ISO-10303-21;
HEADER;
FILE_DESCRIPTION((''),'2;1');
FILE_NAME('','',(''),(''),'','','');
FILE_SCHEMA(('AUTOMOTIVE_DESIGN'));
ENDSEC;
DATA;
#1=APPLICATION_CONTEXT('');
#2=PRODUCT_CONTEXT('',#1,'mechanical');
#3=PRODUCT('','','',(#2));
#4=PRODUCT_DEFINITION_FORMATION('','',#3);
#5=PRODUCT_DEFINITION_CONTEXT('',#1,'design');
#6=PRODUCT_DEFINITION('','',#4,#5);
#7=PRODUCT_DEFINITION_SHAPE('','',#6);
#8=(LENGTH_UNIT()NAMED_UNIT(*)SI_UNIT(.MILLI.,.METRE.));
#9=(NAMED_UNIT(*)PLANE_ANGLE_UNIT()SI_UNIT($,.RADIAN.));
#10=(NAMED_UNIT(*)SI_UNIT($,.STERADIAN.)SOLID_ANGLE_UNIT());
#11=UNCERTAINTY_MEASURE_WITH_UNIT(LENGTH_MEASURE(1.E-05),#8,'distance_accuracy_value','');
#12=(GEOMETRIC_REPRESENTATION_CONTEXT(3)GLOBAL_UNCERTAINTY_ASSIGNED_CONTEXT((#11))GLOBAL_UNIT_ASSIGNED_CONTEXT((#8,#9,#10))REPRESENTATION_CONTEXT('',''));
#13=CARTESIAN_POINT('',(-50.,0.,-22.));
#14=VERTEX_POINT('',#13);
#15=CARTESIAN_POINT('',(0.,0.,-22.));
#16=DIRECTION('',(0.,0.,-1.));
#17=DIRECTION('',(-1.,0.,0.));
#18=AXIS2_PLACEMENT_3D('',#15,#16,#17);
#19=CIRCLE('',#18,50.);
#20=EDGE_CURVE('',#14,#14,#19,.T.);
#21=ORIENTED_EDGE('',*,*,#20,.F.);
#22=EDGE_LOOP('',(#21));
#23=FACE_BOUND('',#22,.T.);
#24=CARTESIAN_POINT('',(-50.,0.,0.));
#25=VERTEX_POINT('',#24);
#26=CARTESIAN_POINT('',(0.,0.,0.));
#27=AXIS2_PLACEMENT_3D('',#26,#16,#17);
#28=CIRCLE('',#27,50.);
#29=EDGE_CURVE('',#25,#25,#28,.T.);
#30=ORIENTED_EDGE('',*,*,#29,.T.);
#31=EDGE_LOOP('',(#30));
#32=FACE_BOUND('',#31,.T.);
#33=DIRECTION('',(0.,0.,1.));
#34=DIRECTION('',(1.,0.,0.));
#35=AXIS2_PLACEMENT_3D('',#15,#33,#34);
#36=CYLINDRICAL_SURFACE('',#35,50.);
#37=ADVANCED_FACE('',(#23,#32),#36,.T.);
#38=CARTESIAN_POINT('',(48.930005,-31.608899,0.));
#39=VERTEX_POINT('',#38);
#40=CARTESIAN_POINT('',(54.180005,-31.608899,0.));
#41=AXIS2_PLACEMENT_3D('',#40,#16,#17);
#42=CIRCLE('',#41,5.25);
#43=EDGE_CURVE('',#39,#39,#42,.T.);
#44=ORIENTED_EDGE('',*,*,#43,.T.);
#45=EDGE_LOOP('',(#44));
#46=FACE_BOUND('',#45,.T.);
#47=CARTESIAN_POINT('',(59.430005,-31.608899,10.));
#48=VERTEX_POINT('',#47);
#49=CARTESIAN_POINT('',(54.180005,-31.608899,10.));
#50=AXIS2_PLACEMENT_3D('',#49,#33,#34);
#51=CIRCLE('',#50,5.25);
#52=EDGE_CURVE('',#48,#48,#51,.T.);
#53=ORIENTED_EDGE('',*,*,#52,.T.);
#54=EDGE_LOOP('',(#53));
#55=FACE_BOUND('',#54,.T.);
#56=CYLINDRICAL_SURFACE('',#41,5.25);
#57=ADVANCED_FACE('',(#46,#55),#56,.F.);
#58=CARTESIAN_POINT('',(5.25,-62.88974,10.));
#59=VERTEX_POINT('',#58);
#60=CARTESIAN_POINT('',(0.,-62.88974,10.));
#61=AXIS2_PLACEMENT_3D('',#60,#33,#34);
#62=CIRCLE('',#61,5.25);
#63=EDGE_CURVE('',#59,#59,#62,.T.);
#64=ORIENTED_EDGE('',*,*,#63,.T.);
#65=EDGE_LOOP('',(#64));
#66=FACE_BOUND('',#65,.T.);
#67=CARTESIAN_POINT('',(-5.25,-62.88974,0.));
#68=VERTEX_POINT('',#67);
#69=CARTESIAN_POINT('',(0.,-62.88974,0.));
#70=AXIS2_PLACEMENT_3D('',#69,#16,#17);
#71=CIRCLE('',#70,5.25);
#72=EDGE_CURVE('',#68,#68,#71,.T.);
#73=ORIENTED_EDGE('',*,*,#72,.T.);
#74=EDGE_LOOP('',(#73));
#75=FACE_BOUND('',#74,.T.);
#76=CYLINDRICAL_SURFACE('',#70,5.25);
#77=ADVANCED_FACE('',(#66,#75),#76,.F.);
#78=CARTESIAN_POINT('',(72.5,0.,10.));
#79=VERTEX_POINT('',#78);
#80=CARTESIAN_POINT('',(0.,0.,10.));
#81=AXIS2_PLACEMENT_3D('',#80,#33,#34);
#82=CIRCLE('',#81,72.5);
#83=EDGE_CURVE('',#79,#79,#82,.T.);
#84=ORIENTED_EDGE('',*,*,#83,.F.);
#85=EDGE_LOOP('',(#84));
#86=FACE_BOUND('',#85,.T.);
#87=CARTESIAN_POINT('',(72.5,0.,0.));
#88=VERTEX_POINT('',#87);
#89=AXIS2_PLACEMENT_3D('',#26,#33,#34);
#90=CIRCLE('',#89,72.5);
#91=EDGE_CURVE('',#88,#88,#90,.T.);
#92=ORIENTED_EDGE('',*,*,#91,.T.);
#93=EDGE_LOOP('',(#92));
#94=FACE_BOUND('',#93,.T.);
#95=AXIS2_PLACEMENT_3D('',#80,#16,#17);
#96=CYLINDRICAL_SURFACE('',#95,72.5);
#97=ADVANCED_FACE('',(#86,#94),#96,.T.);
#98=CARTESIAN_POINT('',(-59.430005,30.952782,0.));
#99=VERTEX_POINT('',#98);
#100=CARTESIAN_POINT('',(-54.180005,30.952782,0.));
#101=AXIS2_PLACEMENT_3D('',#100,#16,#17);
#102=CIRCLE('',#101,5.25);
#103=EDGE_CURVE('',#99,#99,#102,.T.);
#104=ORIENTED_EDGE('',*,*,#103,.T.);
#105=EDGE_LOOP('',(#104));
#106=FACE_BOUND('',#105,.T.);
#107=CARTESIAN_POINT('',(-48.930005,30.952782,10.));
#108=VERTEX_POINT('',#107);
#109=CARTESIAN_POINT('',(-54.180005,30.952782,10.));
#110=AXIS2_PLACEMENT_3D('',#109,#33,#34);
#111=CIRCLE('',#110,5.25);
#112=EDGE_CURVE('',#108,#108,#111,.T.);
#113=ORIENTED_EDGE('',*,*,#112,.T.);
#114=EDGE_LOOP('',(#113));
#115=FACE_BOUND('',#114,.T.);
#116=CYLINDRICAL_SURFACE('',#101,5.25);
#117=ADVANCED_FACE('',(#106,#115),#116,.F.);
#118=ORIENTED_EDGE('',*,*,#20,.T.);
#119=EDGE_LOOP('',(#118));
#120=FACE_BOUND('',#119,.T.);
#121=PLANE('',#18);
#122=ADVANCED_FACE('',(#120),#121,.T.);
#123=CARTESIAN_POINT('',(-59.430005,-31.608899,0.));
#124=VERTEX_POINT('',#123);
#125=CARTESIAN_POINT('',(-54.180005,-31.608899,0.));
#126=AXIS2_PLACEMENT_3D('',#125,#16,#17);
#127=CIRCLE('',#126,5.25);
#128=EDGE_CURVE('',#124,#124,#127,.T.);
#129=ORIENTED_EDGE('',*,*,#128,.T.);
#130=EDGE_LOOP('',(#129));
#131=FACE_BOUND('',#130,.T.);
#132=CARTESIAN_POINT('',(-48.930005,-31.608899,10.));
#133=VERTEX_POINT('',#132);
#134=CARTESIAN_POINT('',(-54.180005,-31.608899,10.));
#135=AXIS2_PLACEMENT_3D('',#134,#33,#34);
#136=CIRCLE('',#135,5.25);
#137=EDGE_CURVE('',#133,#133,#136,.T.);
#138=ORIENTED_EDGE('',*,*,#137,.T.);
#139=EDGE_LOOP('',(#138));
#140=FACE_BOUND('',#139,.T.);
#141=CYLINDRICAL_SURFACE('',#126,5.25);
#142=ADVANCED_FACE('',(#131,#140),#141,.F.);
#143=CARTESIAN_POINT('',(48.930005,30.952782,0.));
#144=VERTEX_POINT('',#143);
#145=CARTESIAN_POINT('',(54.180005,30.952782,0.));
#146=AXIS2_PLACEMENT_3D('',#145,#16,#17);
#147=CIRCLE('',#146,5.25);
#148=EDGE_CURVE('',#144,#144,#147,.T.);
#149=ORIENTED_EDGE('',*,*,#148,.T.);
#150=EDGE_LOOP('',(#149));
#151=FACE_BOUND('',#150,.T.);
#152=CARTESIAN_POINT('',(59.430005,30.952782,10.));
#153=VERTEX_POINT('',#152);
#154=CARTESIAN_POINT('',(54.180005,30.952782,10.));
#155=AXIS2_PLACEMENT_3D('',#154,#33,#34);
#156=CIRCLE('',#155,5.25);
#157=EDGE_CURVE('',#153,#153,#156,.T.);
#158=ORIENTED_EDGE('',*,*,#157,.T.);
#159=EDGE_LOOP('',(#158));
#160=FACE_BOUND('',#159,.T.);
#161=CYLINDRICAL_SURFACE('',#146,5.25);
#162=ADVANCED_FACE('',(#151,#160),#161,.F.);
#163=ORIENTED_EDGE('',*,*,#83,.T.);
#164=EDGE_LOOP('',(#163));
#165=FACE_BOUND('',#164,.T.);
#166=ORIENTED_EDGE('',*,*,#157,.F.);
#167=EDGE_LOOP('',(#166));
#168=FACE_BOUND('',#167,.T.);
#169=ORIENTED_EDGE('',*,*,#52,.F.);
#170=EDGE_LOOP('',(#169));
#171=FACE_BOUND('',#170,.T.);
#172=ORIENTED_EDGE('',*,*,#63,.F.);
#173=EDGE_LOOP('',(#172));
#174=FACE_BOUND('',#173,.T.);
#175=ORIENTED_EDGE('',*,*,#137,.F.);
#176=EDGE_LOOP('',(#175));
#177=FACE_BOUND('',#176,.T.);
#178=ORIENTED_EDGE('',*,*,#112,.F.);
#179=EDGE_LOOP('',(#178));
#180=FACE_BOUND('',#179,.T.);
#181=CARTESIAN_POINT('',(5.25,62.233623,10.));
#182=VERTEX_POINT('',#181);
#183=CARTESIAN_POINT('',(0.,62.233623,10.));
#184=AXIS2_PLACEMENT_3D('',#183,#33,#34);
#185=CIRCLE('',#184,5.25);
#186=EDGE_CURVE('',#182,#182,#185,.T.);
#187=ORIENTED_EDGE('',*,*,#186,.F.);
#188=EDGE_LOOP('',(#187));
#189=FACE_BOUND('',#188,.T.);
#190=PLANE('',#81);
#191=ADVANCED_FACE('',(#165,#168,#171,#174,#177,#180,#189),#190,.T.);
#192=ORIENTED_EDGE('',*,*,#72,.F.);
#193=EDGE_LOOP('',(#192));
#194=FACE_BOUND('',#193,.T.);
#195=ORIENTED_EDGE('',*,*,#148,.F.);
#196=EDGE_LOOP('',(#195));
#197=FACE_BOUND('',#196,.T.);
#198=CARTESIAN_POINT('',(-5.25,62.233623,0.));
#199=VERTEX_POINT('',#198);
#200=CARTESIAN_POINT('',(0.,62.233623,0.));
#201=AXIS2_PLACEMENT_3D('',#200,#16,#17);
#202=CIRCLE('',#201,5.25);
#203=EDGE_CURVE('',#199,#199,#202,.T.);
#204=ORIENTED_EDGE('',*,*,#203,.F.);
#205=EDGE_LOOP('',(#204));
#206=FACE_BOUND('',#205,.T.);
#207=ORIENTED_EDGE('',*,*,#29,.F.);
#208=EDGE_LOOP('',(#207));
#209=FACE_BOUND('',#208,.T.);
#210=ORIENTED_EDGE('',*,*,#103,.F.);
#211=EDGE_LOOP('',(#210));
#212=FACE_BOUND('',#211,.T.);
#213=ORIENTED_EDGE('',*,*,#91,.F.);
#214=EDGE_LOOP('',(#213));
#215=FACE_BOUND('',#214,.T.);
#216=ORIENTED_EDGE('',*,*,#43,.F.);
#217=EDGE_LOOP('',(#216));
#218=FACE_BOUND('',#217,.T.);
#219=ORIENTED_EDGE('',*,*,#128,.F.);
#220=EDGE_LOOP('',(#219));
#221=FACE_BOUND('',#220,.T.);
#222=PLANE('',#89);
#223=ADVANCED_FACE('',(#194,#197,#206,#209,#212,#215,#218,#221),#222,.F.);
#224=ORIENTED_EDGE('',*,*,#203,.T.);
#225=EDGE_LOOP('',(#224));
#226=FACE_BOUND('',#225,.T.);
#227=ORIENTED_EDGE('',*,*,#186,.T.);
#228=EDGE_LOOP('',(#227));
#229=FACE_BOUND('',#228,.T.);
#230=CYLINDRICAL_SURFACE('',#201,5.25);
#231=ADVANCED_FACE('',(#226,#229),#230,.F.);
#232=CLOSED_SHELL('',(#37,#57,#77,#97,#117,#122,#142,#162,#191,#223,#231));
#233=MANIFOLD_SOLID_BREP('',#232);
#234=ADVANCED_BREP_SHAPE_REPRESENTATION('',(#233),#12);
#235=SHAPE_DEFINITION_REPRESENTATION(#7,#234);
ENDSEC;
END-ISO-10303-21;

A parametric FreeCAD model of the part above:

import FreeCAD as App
import Part
import Sketcher

V = App.Vector
Q = App.Units.Quantity

doc = App.newDocument("Part")
params = doc.addObject("Spreadsheet::Sheet", "Params")
for row, (alias, value) in enumerate([
    ("sketch1_diameter", "145 mm"),
    ("pad1_length", "10 mm"),
    ("sketch2_height", "31.5 mm"),
    ("sketch2_width", "5.25 mm"),
    ("groove_angle", "360 deg"),
    ("sketch3_diameter", "100 mm"),
    ("pad2_length", "22 mm"),
], start=1):
    params.set(f"A{row}", alias)
    params.set(f"B{row}", "=" + value)
    params.setAlias(f"B{row}", alias)

body = doc.addObject("PartDesign::Body", "Body")

sketch1 = body.newObject("Sketcher::SketchObject", "Sketch")
sketch1.AttachmentSupport = (doc.getObject("XY_Plane"), [""])
sketch1.MapMode = "FlatFace"
sketch1.addGeometry(Part.Circle(V(0, 0, 0), V(0, 0, 1), 72), False)
sketch1.addConstraint([
    Sketcher.Constraint("Coincident", 0, 3, -1, 1),
    Sketcher.Constraint("Diameter", 0, Q("145 mm")),
])
sketch1.setExpression("Constraints[1]", "Params.sketch1_diameter")
pad1 = body.newObject("PartDesign::Pad", "Pad")
pad1.Profile = sketch1
pad1.setExpression("Length", "Params.pad1_length")

sketch2 = body.newObject("Sketcher::SketchObject", "Sketch001")
sketch2.AttachmentSupport = (doc.getObject("YZ_Plane"), [""])
sketch2.MapMode = "FlatFace"
sketch2.addGeometry([
    Part.LineSegment(V(62, 35, 0), V(62, 0, 0)),
    Part.LineSegment(V(62, 0, 0), V(67, 0, 0)),
    Part.LineSegment(V(67, 0, 0), V(67, 32, 0)),
    Part.LineSegment(V(67, 32, 0), V(62, 35, 0)),
], False)
sketch2.addGeometry(Part.LineSegment(V(62, 0, 0), V(62, 35, 0)), True)
sketch2.addConstraint([
    Sketcher.Constraint("Coincident", 0, 2, 1, 1),
    Sketcher.Constraint("Coincident", 1, 2, 2, 1),
    Sketcher.Constraint("Coincident", 2, 2, 3, 1),
    Sketcher.Constraint("Coincident", 3, 2, 0, 1),
    Sketcher.Constraint("Vertical", 0),
    Sketcher.Constraint("Horizontal", 1),
    Sketcher.Constraint("Vertical", 2),
    Sketcher.Constraint("Vertical", 4),
    Sketcher.Constraint("Coincident", 4, 1, 0, 2),
    Sketcher.Constraint("PointOnObject", 0, 2, -1),
    Sketcher.Constraint("Equal", 0, 4),
    Sketcher.Constraint("Angle", 3, Q("149 deg")),
    Sketcher.Constraint("DistanceY", 2, 1, 2, 2, Q("31.5 mm")),
    Sketcher.Constraint("DistanceX", 1, 1, 1, 2, Q("5.25 mm")),
    Sketcher.Constraint("DistanceX", -1, 1, 0, 2, Q("62.233623 mm")),
])
sketch2.setExpression("Constraints[12]", "Params.sketch2_height")
sketch2.setExpression("Constraints[13]", "Params.sketch2_width")
groove = body.newObject("PartDesign::Groove", "Groove")
groove.Profile = sketch2
groove.ReferenceAxis = (sketch2, ["Axis0"])
groove.setExpression("Angle", "Params.groove_angle")
doc.recompute()

datumline = body.newObject("PartDesign::Line", "DatumLine")
datumline.Placement = App.Placement(V(0, -0.328058, 0), App.Rotation(V(0, 0, 1), V(0, 0, 1)))
polarpattern = body.newObject("PartDesign::PolarPattern", "PolarPattern")
polarpattern.Originals = [groove]
polarpattern.Axis = (datumline, [""])
polarpattern.Angle = 360
polarpattern.Occurrences = 6
body.Tip = polarpattern

sketch3 = body.newObject("Sketcher::SketchObject", "Sketch002")
sketch3.AttachmentSupport = (doc.getObject("XY_Plane"), [""])
sketch3.MapMode = "FlatFace"
sketch3.addGeometry(Part.Circle(V(0, 0, 0), V(0, 0, 1), 50), False)
sketch3.addConstraint([
    Sketcher.Constraint("Coincident", 0, 3, -1, 1),
    Sketcher.Constraint("Diameter", 0, Q("100 mm")),
])
sketch3.setExpression("Constraints[1]", "Params.sketch3_diameter")
pad2 = body.newObject("PartDesign::Pad", "Pad001")
pad2.Profile = sketch3
pad2.setExpression("Length", "Params.pad2_length")
pad2.Reversed = True

doc.recompute()
